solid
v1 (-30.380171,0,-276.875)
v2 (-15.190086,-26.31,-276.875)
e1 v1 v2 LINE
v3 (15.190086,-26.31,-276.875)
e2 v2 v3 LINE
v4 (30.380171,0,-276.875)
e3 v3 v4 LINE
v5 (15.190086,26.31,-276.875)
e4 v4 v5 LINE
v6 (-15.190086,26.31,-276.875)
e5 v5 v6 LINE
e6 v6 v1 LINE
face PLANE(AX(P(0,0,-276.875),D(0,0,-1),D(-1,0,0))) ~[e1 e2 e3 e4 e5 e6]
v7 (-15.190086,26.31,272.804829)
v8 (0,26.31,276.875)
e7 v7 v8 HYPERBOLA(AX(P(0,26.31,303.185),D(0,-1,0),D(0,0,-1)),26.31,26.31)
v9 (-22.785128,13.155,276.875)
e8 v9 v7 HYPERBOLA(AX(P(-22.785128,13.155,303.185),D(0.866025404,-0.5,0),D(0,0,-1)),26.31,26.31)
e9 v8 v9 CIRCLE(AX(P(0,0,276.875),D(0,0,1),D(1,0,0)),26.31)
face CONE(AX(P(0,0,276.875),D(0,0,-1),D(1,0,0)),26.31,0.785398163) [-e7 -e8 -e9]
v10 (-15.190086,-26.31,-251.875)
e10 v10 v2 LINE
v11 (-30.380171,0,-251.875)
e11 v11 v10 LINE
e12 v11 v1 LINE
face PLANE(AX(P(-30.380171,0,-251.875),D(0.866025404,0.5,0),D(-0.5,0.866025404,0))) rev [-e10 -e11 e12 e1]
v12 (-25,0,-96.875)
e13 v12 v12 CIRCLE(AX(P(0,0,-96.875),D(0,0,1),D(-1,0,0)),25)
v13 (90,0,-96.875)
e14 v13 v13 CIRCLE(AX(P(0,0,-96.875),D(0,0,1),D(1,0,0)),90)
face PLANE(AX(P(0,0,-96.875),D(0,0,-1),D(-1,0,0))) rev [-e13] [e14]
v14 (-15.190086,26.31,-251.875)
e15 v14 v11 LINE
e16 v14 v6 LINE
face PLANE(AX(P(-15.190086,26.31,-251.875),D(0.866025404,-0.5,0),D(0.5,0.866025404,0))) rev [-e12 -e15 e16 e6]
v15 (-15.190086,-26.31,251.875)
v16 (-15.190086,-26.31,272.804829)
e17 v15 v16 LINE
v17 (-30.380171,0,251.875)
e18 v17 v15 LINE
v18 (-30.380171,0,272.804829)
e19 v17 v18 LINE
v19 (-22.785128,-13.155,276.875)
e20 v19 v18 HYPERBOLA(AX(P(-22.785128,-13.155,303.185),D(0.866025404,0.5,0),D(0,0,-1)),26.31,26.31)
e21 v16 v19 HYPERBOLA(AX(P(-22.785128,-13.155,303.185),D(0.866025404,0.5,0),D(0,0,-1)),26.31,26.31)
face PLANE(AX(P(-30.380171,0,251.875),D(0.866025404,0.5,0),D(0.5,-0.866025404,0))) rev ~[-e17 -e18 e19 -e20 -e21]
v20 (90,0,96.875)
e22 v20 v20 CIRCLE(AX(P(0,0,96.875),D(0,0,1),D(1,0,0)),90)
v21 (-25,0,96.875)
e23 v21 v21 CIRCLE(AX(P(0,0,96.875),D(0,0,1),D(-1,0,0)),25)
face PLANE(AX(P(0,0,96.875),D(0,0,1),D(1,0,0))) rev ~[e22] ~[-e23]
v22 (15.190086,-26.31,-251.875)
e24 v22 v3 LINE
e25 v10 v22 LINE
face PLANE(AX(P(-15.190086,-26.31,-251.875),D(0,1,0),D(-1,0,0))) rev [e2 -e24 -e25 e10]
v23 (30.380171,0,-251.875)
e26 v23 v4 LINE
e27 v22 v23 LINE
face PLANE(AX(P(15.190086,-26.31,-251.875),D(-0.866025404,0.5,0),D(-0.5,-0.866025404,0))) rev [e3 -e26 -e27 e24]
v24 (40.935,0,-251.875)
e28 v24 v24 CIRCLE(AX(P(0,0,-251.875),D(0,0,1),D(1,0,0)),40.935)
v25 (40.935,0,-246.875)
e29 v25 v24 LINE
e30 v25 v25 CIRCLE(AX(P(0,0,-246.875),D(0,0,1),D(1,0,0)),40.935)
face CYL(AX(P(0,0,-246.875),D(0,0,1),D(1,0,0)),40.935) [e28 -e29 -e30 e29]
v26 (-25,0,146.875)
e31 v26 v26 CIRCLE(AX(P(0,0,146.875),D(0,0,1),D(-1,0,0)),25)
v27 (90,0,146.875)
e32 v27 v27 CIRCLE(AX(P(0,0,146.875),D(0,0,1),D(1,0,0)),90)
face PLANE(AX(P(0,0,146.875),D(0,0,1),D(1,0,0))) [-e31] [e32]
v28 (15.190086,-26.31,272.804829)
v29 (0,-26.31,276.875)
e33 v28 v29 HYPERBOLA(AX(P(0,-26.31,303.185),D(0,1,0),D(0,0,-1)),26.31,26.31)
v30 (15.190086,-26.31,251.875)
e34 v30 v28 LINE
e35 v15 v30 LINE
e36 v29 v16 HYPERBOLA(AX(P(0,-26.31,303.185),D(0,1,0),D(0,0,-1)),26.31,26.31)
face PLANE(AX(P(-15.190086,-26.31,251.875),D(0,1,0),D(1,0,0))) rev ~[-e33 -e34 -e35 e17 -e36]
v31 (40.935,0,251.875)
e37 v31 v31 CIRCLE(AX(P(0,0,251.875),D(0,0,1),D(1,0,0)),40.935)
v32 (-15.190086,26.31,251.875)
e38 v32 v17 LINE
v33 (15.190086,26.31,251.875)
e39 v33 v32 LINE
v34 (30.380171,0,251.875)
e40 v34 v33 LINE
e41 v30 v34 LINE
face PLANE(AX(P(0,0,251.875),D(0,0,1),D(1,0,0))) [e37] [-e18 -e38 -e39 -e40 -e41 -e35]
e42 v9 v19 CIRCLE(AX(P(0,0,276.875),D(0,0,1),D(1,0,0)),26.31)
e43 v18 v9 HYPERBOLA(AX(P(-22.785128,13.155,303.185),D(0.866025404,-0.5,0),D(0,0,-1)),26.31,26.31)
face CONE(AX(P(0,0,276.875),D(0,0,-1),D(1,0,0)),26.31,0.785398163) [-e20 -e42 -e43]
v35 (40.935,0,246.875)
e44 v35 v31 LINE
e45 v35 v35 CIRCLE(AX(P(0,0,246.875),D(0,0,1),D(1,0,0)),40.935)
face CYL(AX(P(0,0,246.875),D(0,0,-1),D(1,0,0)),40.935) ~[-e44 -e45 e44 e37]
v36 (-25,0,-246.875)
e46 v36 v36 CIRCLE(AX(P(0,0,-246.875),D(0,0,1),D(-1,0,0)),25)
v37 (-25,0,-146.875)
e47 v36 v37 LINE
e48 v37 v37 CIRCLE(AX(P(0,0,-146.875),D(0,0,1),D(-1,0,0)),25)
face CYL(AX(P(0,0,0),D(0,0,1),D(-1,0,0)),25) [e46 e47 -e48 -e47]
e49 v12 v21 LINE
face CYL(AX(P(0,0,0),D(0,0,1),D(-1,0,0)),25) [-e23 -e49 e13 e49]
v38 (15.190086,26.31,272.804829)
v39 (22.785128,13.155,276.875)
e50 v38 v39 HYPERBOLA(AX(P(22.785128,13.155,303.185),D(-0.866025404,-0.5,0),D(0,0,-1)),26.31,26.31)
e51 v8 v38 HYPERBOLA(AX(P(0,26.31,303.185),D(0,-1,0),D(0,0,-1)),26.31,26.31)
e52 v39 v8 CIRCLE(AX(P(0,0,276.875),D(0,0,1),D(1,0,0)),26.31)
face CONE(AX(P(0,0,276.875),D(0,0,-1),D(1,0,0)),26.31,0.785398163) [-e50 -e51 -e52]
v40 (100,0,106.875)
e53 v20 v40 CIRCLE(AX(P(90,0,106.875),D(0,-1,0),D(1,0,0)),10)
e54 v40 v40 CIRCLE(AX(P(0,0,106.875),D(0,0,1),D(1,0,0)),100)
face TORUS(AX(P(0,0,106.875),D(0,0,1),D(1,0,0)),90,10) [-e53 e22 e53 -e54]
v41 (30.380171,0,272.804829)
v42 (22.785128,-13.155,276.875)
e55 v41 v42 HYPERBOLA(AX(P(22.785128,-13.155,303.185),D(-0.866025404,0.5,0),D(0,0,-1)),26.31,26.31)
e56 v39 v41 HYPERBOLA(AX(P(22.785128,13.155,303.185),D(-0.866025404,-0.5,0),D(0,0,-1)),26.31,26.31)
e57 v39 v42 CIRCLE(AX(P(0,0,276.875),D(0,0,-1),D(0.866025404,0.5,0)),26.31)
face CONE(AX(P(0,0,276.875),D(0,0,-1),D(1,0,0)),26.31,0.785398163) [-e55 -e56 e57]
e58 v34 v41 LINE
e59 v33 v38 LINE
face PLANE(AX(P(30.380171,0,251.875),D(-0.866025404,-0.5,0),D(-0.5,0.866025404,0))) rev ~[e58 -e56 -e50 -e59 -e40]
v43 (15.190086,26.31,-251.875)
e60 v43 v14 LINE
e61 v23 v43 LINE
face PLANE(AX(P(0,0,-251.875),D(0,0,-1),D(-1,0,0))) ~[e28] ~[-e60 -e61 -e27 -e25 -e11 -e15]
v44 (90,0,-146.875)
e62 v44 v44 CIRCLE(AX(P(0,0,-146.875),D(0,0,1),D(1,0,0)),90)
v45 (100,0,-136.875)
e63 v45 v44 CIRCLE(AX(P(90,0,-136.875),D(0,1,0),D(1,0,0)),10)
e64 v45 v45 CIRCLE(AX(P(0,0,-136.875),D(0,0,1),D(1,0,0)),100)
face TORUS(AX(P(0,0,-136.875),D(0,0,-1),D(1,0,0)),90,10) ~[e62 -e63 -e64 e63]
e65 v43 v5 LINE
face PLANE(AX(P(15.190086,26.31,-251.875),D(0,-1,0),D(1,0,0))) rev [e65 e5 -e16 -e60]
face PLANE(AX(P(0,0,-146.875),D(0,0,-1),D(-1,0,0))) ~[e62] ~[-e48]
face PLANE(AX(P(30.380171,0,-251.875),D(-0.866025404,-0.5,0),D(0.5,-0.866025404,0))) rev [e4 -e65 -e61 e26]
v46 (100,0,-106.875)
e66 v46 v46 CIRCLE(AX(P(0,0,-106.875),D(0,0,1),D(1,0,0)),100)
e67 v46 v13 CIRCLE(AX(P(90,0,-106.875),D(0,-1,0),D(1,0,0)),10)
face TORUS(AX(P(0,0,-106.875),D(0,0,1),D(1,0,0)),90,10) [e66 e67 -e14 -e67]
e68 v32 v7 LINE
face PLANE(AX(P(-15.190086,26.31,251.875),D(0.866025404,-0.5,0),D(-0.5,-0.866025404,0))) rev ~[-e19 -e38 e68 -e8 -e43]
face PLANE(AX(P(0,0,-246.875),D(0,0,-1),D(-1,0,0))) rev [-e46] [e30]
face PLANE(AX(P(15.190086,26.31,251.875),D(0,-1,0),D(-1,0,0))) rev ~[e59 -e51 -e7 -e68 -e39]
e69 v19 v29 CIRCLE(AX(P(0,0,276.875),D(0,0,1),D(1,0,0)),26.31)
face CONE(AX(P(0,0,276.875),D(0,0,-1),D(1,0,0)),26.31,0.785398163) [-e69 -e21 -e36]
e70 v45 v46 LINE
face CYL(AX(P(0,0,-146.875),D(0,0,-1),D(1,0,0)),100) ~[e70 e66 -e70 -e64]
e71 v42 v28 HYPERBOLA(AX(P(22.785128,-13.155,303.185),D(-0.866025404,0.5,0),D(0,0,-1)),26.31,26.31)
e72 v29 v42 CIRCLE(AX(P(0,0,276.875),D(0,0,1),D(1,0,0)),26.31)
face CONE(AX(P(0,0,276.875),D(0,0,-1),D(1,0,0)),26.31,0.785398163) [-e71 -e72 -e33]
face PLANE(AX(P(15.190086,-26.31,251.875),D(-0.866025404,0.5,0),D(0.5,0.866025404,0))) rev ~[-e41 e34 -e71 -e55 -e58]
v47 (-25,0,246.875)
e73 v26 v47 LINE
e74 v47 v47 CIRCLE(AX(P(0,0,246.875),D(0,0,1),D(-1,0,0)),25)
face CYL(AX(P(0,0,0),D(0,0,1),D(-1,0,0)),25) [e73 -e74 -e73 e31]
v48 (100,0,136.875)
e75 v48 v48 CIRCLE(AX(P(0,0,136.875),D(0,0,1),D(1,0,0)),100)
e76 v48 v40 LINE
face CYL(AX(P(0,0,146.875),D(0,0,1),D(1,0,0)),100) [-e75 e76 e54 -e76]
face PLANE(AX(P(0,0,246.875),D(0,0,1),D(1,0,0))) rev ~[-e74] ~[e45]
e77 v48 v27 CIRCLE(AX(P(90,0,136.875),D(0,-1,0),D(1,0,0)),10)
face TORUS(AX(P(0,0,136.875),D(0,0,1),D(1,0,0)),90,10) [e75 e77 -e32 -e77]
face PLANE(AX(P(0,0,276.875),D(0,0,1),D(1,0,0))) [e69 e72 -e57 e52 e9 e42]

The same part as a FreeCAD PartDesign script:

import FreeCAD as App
import Part
import Sketcher
Q = App.Units.Quantity


def edges_at(feature, points):
    """Names of the edges that pass closest to the given points."""
    edges = feature.Shape.Edges
    near = lambda p: min(range(len(edges)), key=lambda i: edges[i].distToShape(Part.Vertex(*p))[0])
    return sorted({f"Edge{near(p) + 1}" for p in points})


def add_polygon(sketch, points):
    """Adds a closed chain of lines whose ends are joined by coincident constraints."""
    first, n = sketch.GeometryCount, len(points)
    for a, b in zip(points, points[1:] + points[:1]):
        sketch.addGeometry(Part.LineSegment(App.Vector(*a, 0), App.Vector(*b, 0)), False)
    for i in range(n):
        sketch.addConstraint(Sketcher.Constraint("Coincident", first + i, 2, first + (i + 1) % n, 1))

doc = App.newDocument("Part")
body = doc.addObject("PartDesign::Body", "Body")

# Sketch on XY plane
sketch1 = doc.addObject("Sketcher::SketchObject", "Sketch")
body.addObject(sketch1)
sketch1.AttachmentSupport = (doc.XY_Plane, [""])
sketch1.MapMode = "FlatFace"
sketch1.addGeometry(Part.Circle(App.Vector(0, 0, 0), App.Vector(0, 0, 1), 25), False)
sketch1.addConstraint([
    Sketcher.Constraint("Coincident", 0, 3, -1, 1),
    Sketcher.Constraint("Diameter", 0, 50.0),
])
pad1 = doc.addObject("PartDesign::Pad", "Pad")
body.addObject(pad1)
pad1.Profile = sketch1
pad1.Length = 493.75
pad1.Midplane = True

# Sketch on XY plane
sketch2 = doc.addObject("Sketcher::SketchObject", "Sketch001")
body.addObject(sketch2)
sketch2.AttachmentSupport = (doc.XY_Plane, [""])
sketch2.MapMode = "FlatFace"
sketch2.AttachmentOffset = App.Placement(App.Vector(0, 0, 146.875), App.Rotation())
sketch2.addGeometry(Part.Circle(App.Vector(0, 0, 0), App.Vector(0, 0, 1), 100), False)
sketch2.addConstraint([
    Sketcher.Constraint("Coincident", 0, 3, -1, 1),
    Sketcher.Constraint("Diameter", 0, 200.0),
])
pad2 = doc.addObject("PartDesign::Pad", "Pad001")
body.addObject(pad2)
pad2.Profile = sketch2
pad2.Length = 50
pad2.Reversed = True
doc.recompute()

mirrored = doc.addObject("PartDesign::Mirrored", "Mirrored")
body.addObject(mirrored)
mirrored.Originals = [pad2]
mirrored.MirrorPlane = (doc.XY_Plane, [""])
body.Tip = mirrored
doc.recompute()

fillet = doc.addObject("PartDesign::Fillet", "Fillet")
body.addObject(fillet)
fillet.Base = (mirrored, edges_at(mirrored, [
    (-100, 0, -146.875),
    (-100, 0, -96.875),
    (-100, 0, 96.875),
    (-100, 0, 146.875),
]))
fillet.Radius = 10

# Sketch on XY plane
sketch3 = doc.addObject("Sketcher::SketchObject", "Sketch002")
body.addObject(sketch3)
sketch3.AttachmentSupport = (doc.XY_Plane, [""])
sketch3.MapMode = "FlatFace"
sketch3.AttachmentOffset = App.Placement(App.Vector(0, 0, 246.875), App.Rotation())
sketch3.addGeometry(Part.Circle(App.Vector(0, 0, 0), App.Vector(0, 0, 1), 41), False)
sketch3.addConstraint([
    Sketcher.Constraint("Coincident", 0, 3, -1, 1),
    Sketcher.Constraint("Diameter", 0, 81.87),
])
pad3 = doc.addObject("PartDesign::Pad", "Pad002")
body.addObject(pad3)
pad3.Profile = sketch3
pad3.Length = 5

# Sketch on XY plane
sketch4 = doc.addObject("Sketcher::SketchObject", "Sketch003")
body.addObject(sketch4)
sketch4.AttachmentSupport = (doc.XY_Plane, [""])
sketch4.MapMode = "FlatFace"
sketch4.AttachmentOffset = App.Placement(App.Vector(0, 0, 251.875), App.Rotation())
add_polygon(sketch4, [(30, 0), (15, 26), (-15, 26), (-30, 0), (-15, -26), (15, -26)])  # lines 0-5
sketch4.addConstraint([
    Sketcher.Constraint("Horizontal", 1),
    Sketcher.Constraint("Horizontal", 4),
    Sketcher.Constraint("Symmetric", 0, 2, 3, 2, -1, 1),
    Sketcher.Constraint("Symmetric", 2, 2, 5, 2, -1, 1),
    Sketcher.Constraint("PointOnObject", 2, 2, -1),
    Sketcher.Constraint("Parallel", 2, 5),
    Sketcher.Constraint("Vertical", 1, 2, 3, 2),
    Sketcher.Constraint("Angle", 0, Q("120 deg")),
    Sketcher.Constraint("DistanceY", -1, 1, 0, 2, 26.31),
    Sketcher.Constraint("DistanceX", 1, 2, 1, 1, 30.380171),
])
pad4 = doc.addObject("PartDesign::Pad", "Pad003")
body.addObject(pad4)
pad4.Profile = sketch4
pad4.Length = 25

# Sketch on XY plane
sketch5 = doc.addObject("Sketcher::SketchObject", "Sketch004")
body.addObject(sketch5)
sketch5.AttachmentSupport = (doc.XY_Plane, [""])
sketch5.MapMode = "FlatFace"
sketch5.AttachmentOffset = App.Placement(App.Vector(0, 0, 276.875), App.Rotation())
sketch5.addGeometry([
    Part.Circle(App.Vector(0, 0, 0), App.Vector(0, 0, 1), 41),
    Part.Circle(App.Vector(0, 0, 0), App.Vector(0, 0, 1), 26),
], False)
sketch5.addConstraint([
    Sketcher.Constraint("Coincident", 0, 3, -1, 1),
    Sketcher.Constraint("Coincident", 1, 3, -1, 1),
    Sketcher.Constraint("Diameter", 0, 81.87),
    Sketcher.Constraint("Diameter", 1, 52.62),
])
pocket1 = doc.addObject("PartDesign::Pocket", "Pocket")
body.addObject(pocket1)
pocket1.Profile = sketch5
pocket1.Length = 25
pocket1.TaperAngle = 45
doc.recompute()

mirrored2 = doc.addObject("PartDesign::Mirrored", "Mirrored001")
body.addObject(mirrored2)
mirrored2.Originals = [pad3, pad4]
mirrored2.MirrorPlane = (doc.XY_Plane, [""])
body.Tip = mirrored2

doc.recompute()
